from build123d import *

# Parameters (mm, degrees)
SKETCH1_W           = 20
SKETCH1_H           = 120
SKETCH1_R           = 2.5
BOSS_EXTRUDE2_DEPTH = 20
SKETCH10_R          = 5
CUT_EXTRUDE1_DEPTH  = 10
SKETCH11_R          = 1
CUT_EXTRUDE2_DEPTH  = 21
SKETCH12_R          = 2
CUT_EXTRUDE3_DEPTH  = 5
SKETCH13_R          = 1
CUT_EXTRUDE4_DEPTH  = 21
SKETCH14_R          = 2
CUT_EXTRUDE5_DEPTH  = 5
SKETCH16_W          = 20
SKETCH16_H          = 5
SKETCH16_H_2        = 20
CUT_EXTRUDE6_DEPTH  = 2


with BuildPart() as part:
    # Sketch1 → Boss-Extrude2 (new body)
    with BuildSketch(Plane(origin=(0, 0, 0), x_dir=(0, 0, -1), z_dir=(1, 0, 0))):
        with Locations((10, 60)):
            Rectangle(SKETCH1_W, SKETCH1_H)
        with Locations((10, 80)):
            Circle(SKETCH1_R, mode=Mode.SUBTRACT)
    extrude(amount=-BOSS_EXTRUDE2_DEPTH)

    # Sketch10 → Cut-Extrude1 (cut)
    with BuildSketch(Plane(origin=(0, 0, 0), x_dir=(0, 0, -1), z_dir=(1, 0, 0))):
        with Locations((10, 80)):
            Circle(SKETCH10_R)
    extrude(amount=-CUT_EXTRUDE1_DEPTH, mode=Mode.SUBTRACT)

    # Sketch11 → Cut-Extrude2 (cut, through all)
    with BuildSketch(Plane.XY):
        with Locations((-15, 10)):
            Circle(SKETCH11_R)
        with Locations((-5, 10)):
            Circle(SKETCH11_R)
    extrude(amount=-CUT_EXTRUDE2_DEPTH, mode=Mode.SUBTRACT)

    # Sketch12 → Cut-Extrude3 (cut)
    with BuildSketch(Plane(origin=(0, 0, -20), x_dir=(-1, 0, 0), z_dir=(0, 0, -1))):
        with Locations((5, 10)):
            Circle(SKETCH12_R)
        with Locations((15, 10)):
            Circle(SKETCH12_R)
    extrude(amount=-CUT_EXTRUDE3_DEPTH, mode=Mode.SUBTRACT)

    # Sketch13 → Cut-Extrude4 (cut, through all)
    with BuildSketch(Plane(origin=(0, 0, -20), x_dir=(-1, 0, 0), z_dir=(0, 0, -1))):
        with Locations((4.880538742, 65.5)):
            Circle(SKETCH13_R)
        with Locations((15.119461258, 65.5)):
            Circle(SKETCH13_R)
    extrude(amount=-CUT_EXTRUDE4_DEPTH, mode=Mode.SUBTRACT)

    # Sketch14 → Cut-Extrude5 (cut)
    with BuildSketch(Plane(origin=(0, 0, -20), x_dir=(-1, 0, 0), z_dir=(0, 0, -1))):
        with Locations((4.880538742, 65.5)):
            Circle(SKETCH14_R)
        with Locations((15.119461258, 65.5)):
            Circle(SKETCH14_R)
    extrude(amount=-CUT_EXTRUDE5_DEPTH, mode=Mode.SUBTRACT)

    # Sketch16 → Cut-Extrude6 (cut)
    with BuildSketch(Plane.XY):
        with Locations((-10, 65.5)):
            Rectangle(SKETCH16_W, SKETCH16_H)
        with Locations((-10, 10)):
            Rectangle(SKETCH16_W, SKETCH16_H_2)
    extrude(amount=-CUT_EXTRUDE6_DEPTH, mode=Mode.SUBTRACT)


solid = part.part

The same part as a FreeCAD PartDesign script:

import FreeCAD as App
import Part
import Sketcher
from FreeCAD import Vector
Q = App.Units.Quantity


def add_polygon(sketch, points):
    """Adds a closed chain of lines whose ends are joined by coincident constraints."""
    first, n = sketch.GeometryCount, len(points)
    for a, b in zip(points, points[1:] + points[:1]):
        sketch.addGeometry(Part.LineSegment(App.Vector(*a, 0), App.Vector(*b, 0)), False)
    for i in range(n):
        sketch.addConstraint(Sketcher.Constraint("Coincident", first + i, 2, first + (i + 1) % n, 1))

doc = App.newDocument("Part")
body = doc.addObject("PartDesign::Body", "Body")

# Sketch on YZ plane
sketch1 = doc.addObject("Sketcher::SketchObject", "Sketch")
body.addObject(sketch1)
sketch1.AttachmentSupport = (doc.YZ_Plane, [""])
sketch1.MapMode = "FlatFace"
add_polygon(sketch1, [(120, 0), (0, 0), (0, -20), (120, -20)])  # lines 0-3
sketch1.addGeometry(Part.Circle(Vector(80, -10, 0), Vector(0, 0, 1), 2.5), False)  # 4
sketch1.addConstraint(Sketcher.Constraint("Horizontal", 0))
sketch1.addConstraint(Sketcher.Constraint("Vertical", 1))
sketch1.addConstraint(Sketcher.Constraint("Horizontal", 2))
sketch1.addConstraint(Sketcher.Constraint("Vertical", 3))
sketch1.addConstraint(Sketcher.Constraint("Coincident", 0, 2, -1, 1))
sketch1.addConstraint(Sketcher.Constraint("Diameter", 4, Q("5 mm")))
sketch1.addConstraint(Sketcher.Constraint("DistanceX", 0, 2, 0, 1, Q("120 mm")))
sketch1.addConstraint(Sketcher.Constraint("DistanceY", 1, 2, 1, 1, Q("20 mm")))
sketch1.addConstraint(Sketcher.Constraint("DistanceX", -1, 1, 4, 3, Q("80 mm")))
sketch1.addConstraint(Sketcher.Constraint("DistanceY", 4, 3, -1, 1, Q("10 mm")))
pad1 = doc.addObject("PartDesign::Pad", "Pad")
body.addObject(pad1)
pad1.Profile = sketch1
pad1.Length = 20
pad1.Reversed = True

# Sketch on YZ plane
sketch2 = doc.addObject("Sketcher::SketchObject", "Sketch001")
body.addObject(sketch2)
sketch2.AttachmentSupport = (doc.YZ_Plane, [""])
sketch2.MapMode = "FlatFace"
sketch2.addGeometry(Part.Circle(Vector(80, -10, 0), Vector(0, 0, 1), 5), False)
sketch2.addConstraint(Sketcher.Constraint("Diameter", 0, Q("10 mm")))
sketch2.addConstraint(Sketcher.Constraint("DistanceX", -1, 1, 0, 3, Q("80 mm")))
sketch2.addConstraint(Sketcher.Constraint("DistanceY", 0, 3, -1, 1, Q("10 mm")))
pocket1 = doc.addObject("PartDesign::Pocket", "Pocket")
body.addObject(pocket1)
pocket1.Profile = sketch2
pocket1.Length = 10

# Sketch on XY plane
sketch3 = doc.addObject("Sketcher::SketchObject", "Sketch002")
body.addObject(sketch3)
sketch3.AttachmentSupport = (doc.XY_Plane, [""])
sketch3.MapMode = "FlatFace"
sketch3.addGeometry(Part.Circle(Vector(-15, 10, 0), Vector(0, 0, 1), 1), False)
sketch3.addGeometry(Part.Circle(Vector(-5, 10, 0), Vector(0, 0, 1), 1), False)
sketch3.addConstraint(Sketcher.Constraint("Equal", 0, 1))
sketch3.addConstraint(Sketcher.Constraint("Horizontal", 0, 3, 1, 3))
sketch3.addConstraint(Sketcher.Constraint("Diameter", 0, Q("2 mm")))
sketch3.addConstraint(Sketcher.Constraint("DistanceX", 0, 3, -1, 1, Q("15 mm")))
sketch3.addConstraint(Sketcher.Constraint("DistanceY", -1, 1, 0, 3, Q("10 mm")))
sketch3.addConstraint(Sketcher.Constraint("DistanceX", 1, 3, -1, 1, Q("5 mm")))
pocket2 = doc.addObject("PartDesign::Pocket", "Pocket001")
body.addObject(pocket2)
pocket2.Profile = sketch3
pocket2.Type = "ThroughAll"

# Sketch on XY plane
sketch4 = doc.addObject("Sketcher::SketchObject", "Sketch003")
body.addObject(sketch4)
sketch4.AttachmentSupport = (doc.XY_Plane, [""])
sketch4.MapMode = "FlatFace"
sketch4.AttachmentOffset = App.Placement(Vector(0, 0, -20), App.Rotation())
sketch4.addGeometry(Part.Circle(Vector(-5, 10, 0), Vector(0, 0, 1), 2), False)
sketch4.addGeometry(Part.Circle(Vector(-15, 10, 0), Vector(0, 0, 1), 2), False)
sketch4.addConstraint(Sketcher.Constraint("Equal", 0, 1))
sketch4.addConstraint(Sketcher.Constraint("Horizontal", 0, 3, 1, 3))
sketch4.addConstraint(Sketcher.Constraint("Diameter", 0, Q("4 mm")))
sketch4.addConstraint(Sketcher.Constraint("DistanceX", 0, 3, -1, 1, Q("5 mm")))
sketch4.addConstraint(Sketcher.Constraint("DistanceY", -1, 1, 0, 3, Q("10 mm")))
sketch4.addConstraint(Sketcher.Constraint("DistanceX", 1, 3, -1, 1, Q("15 mm")))
pocket3 = doc.addObject("PartDesign::Pocket", "Pocket002")
body.addObject(pocket3)
pocket3.Profile = sketch4
pocket3.Length = 5
pocket3.Reversed = True

# Sketch on XY plane
sketch5 = doc.addObject("Sketcher::SketchObject", "Sketch004")
body.addObject(sketch5)
sketch5.AttachmentSupport = (doc.XY_Plane, [""])
sketch5.MapMode = "FlatFace"
sketch5.AttachmentOffset = App.Placement(Vector(0, 0, -20), App.Rotation())
sketch5.addGeometry(Part.Circle(Vector(-4.9, 65.5, 0), Vector(0, 0, 1), 1), False)
sketch5.addGeometry(Part.Circle(Vector(-15.1, 65.5, 0), Vector(0, 0, 1), 1), False)
sketch5.addConstraint(Sketcher.Constraint("Equal", 0, 1))
sketch5.addConstraint(Sketcher.Constraint("Horizontal", 0, 3, 1, 3))
sketch5.addConstraint(Sketcher.Constraint("Diameter", 0, Q("2 mm")))
sketch5.addConstraint(Sketcher.Constraint("DistanceY", -1, 1, 0, 3, Q("65.5 mm")))
sketch5.addConstraint(Sketcher.Constraint("DistanceX", 0, 3, -1, 1, Q("4.880539 mm")))
sketch5.addConstraint(Sketcher.Constraint("DistanceX", 1, 3, -1, 1, Q("15.119461 mm")))
pocket4 = doc.addObject("PartDesign::Pocket", "Pocket003")
body.addObject(pocket4)
pocket4.Profile = sketch5
pocket4.Type = "ThroughAll"
pocket4.Reversed = True

# Sketch on XY plane
sketch6 = doc.addObject("Sketcher::SketchObject", "Sketch005")
body.addObject(sketch6)
sketch6.AttachmentSupport = (doc.XY_Plane, [""])
sketch6.MapMode = "FlatFace"
sketch6.AttachmentOffset = App.Placement(Vector(0, 0, -20), App.Rotation())
sketch6.addGeometry(Part.Circle(Vector(-4.9, 65.5, 0), Vector(0, 0, 1), 2), False)
sketch6.addGeometry(Part.Circle(Vector(-15.1, 65.5, 0), Vector(0, 0, 1), 2), False)
sketch6.addConstraint(Sketcher.Constraint("Equal", 0, 1))
sketch6.addConstraint(Sketcher.Constraint("Horizontal", 0, 3, 1, 3))
sketch6.addConstraint(Sketcher.Constraint("Diameter", 0, Q("4 mm")))
sketch6.addConstraint(Sketcher.Constraint("DistanceY", -1, 1, 0, 3, Q("65.5 mm")))
sketch6.addConstraint(Sketcher.Constraint("DistanceX", 0, 3, -1, 1, Q("4.880539 mm")))
sketch6.addConstraint(Sketcher.Constraint("DistanceX", 1, 3, -1, 1, Q("15.119461 mm")))
pocket5 = doc.addObject("PartDesign::Pocket", "Pocket004")
body.addObject(pocket5)
pocket5.Profile = sketch6
pocket5.Length = 5
pocket5.Reversed = True

# Sketch on XY plane
sketch7 = doc.addObject("Sketcher::SketchObject", "Sketch006")
body.addObject(sketch7)
sketch7.AttachmentSupport = (doc.XY_Plane, [""])
sketch7.MapMode = "FlatFace"
add_polygon(sketch7, [(-20, 68), (-20, 63), (0, 63), (0, 68)])  # lines 0-3
add_polygon(sketch7, [(-20, 20), (-20, 0), (0, 0), (0, 20)])  # lines 4-7
sketch7.addConstraint(Sketcher.Constraint("Vertical", 0))
sketch7.addConstraint(Sketcher.Constraint("Horizontal", 1))
sketch7.addConstraint(Sketcher.Constraint("Vertical", 2))
sketch7.addConstraint(Sketcher.Constraint("Horizontal", 3))
sketch7.addConstraint(Sketcher.Constraint("Vertical", 4))
sketch7.addConstraint(Sketcher.Constraint("Horizontal", 5))
sketch7.addConstraint(Sketcher.Constraint("Vertical", 6))
sketch7.addConstraint(Sketcher.Constraint("Horizontal", 7))
sketch7.addConstraint(Sketcher.Constraint("Coincident", 5, 2, -1, 1))
sketch7.addConstraint(Sketcher.Constraint("PointOnObject", 1, 2, -2))
sketch7.addConstraint(Sketcher.Constraint("Vertical", 3, 2, 4, 2))
sketch7.addConstraint(Sketcher.Constraint("Equal", 7, 4))
sketch7.addConstraint(Sketcher.Constraint("DistanceX", 1, 1, 1, 2, Q("20 mm")))
sketch7.addConstraint(Sketcher.Constraint("DistanceY", 0, 2, 0, 1, Q("5 mm")))
sketch7.addConstraint(Sketcher.Constraint("DistanceY", -1, 1, 0, 2, Q("63 mm")))
pocket6 = doc.addObject("PartDesign::Pocket", "Pocket005")
body.addObject(pocket6)
pocket6.Profile = sketch7
pocket6.Length = 2

doc.recompute()
